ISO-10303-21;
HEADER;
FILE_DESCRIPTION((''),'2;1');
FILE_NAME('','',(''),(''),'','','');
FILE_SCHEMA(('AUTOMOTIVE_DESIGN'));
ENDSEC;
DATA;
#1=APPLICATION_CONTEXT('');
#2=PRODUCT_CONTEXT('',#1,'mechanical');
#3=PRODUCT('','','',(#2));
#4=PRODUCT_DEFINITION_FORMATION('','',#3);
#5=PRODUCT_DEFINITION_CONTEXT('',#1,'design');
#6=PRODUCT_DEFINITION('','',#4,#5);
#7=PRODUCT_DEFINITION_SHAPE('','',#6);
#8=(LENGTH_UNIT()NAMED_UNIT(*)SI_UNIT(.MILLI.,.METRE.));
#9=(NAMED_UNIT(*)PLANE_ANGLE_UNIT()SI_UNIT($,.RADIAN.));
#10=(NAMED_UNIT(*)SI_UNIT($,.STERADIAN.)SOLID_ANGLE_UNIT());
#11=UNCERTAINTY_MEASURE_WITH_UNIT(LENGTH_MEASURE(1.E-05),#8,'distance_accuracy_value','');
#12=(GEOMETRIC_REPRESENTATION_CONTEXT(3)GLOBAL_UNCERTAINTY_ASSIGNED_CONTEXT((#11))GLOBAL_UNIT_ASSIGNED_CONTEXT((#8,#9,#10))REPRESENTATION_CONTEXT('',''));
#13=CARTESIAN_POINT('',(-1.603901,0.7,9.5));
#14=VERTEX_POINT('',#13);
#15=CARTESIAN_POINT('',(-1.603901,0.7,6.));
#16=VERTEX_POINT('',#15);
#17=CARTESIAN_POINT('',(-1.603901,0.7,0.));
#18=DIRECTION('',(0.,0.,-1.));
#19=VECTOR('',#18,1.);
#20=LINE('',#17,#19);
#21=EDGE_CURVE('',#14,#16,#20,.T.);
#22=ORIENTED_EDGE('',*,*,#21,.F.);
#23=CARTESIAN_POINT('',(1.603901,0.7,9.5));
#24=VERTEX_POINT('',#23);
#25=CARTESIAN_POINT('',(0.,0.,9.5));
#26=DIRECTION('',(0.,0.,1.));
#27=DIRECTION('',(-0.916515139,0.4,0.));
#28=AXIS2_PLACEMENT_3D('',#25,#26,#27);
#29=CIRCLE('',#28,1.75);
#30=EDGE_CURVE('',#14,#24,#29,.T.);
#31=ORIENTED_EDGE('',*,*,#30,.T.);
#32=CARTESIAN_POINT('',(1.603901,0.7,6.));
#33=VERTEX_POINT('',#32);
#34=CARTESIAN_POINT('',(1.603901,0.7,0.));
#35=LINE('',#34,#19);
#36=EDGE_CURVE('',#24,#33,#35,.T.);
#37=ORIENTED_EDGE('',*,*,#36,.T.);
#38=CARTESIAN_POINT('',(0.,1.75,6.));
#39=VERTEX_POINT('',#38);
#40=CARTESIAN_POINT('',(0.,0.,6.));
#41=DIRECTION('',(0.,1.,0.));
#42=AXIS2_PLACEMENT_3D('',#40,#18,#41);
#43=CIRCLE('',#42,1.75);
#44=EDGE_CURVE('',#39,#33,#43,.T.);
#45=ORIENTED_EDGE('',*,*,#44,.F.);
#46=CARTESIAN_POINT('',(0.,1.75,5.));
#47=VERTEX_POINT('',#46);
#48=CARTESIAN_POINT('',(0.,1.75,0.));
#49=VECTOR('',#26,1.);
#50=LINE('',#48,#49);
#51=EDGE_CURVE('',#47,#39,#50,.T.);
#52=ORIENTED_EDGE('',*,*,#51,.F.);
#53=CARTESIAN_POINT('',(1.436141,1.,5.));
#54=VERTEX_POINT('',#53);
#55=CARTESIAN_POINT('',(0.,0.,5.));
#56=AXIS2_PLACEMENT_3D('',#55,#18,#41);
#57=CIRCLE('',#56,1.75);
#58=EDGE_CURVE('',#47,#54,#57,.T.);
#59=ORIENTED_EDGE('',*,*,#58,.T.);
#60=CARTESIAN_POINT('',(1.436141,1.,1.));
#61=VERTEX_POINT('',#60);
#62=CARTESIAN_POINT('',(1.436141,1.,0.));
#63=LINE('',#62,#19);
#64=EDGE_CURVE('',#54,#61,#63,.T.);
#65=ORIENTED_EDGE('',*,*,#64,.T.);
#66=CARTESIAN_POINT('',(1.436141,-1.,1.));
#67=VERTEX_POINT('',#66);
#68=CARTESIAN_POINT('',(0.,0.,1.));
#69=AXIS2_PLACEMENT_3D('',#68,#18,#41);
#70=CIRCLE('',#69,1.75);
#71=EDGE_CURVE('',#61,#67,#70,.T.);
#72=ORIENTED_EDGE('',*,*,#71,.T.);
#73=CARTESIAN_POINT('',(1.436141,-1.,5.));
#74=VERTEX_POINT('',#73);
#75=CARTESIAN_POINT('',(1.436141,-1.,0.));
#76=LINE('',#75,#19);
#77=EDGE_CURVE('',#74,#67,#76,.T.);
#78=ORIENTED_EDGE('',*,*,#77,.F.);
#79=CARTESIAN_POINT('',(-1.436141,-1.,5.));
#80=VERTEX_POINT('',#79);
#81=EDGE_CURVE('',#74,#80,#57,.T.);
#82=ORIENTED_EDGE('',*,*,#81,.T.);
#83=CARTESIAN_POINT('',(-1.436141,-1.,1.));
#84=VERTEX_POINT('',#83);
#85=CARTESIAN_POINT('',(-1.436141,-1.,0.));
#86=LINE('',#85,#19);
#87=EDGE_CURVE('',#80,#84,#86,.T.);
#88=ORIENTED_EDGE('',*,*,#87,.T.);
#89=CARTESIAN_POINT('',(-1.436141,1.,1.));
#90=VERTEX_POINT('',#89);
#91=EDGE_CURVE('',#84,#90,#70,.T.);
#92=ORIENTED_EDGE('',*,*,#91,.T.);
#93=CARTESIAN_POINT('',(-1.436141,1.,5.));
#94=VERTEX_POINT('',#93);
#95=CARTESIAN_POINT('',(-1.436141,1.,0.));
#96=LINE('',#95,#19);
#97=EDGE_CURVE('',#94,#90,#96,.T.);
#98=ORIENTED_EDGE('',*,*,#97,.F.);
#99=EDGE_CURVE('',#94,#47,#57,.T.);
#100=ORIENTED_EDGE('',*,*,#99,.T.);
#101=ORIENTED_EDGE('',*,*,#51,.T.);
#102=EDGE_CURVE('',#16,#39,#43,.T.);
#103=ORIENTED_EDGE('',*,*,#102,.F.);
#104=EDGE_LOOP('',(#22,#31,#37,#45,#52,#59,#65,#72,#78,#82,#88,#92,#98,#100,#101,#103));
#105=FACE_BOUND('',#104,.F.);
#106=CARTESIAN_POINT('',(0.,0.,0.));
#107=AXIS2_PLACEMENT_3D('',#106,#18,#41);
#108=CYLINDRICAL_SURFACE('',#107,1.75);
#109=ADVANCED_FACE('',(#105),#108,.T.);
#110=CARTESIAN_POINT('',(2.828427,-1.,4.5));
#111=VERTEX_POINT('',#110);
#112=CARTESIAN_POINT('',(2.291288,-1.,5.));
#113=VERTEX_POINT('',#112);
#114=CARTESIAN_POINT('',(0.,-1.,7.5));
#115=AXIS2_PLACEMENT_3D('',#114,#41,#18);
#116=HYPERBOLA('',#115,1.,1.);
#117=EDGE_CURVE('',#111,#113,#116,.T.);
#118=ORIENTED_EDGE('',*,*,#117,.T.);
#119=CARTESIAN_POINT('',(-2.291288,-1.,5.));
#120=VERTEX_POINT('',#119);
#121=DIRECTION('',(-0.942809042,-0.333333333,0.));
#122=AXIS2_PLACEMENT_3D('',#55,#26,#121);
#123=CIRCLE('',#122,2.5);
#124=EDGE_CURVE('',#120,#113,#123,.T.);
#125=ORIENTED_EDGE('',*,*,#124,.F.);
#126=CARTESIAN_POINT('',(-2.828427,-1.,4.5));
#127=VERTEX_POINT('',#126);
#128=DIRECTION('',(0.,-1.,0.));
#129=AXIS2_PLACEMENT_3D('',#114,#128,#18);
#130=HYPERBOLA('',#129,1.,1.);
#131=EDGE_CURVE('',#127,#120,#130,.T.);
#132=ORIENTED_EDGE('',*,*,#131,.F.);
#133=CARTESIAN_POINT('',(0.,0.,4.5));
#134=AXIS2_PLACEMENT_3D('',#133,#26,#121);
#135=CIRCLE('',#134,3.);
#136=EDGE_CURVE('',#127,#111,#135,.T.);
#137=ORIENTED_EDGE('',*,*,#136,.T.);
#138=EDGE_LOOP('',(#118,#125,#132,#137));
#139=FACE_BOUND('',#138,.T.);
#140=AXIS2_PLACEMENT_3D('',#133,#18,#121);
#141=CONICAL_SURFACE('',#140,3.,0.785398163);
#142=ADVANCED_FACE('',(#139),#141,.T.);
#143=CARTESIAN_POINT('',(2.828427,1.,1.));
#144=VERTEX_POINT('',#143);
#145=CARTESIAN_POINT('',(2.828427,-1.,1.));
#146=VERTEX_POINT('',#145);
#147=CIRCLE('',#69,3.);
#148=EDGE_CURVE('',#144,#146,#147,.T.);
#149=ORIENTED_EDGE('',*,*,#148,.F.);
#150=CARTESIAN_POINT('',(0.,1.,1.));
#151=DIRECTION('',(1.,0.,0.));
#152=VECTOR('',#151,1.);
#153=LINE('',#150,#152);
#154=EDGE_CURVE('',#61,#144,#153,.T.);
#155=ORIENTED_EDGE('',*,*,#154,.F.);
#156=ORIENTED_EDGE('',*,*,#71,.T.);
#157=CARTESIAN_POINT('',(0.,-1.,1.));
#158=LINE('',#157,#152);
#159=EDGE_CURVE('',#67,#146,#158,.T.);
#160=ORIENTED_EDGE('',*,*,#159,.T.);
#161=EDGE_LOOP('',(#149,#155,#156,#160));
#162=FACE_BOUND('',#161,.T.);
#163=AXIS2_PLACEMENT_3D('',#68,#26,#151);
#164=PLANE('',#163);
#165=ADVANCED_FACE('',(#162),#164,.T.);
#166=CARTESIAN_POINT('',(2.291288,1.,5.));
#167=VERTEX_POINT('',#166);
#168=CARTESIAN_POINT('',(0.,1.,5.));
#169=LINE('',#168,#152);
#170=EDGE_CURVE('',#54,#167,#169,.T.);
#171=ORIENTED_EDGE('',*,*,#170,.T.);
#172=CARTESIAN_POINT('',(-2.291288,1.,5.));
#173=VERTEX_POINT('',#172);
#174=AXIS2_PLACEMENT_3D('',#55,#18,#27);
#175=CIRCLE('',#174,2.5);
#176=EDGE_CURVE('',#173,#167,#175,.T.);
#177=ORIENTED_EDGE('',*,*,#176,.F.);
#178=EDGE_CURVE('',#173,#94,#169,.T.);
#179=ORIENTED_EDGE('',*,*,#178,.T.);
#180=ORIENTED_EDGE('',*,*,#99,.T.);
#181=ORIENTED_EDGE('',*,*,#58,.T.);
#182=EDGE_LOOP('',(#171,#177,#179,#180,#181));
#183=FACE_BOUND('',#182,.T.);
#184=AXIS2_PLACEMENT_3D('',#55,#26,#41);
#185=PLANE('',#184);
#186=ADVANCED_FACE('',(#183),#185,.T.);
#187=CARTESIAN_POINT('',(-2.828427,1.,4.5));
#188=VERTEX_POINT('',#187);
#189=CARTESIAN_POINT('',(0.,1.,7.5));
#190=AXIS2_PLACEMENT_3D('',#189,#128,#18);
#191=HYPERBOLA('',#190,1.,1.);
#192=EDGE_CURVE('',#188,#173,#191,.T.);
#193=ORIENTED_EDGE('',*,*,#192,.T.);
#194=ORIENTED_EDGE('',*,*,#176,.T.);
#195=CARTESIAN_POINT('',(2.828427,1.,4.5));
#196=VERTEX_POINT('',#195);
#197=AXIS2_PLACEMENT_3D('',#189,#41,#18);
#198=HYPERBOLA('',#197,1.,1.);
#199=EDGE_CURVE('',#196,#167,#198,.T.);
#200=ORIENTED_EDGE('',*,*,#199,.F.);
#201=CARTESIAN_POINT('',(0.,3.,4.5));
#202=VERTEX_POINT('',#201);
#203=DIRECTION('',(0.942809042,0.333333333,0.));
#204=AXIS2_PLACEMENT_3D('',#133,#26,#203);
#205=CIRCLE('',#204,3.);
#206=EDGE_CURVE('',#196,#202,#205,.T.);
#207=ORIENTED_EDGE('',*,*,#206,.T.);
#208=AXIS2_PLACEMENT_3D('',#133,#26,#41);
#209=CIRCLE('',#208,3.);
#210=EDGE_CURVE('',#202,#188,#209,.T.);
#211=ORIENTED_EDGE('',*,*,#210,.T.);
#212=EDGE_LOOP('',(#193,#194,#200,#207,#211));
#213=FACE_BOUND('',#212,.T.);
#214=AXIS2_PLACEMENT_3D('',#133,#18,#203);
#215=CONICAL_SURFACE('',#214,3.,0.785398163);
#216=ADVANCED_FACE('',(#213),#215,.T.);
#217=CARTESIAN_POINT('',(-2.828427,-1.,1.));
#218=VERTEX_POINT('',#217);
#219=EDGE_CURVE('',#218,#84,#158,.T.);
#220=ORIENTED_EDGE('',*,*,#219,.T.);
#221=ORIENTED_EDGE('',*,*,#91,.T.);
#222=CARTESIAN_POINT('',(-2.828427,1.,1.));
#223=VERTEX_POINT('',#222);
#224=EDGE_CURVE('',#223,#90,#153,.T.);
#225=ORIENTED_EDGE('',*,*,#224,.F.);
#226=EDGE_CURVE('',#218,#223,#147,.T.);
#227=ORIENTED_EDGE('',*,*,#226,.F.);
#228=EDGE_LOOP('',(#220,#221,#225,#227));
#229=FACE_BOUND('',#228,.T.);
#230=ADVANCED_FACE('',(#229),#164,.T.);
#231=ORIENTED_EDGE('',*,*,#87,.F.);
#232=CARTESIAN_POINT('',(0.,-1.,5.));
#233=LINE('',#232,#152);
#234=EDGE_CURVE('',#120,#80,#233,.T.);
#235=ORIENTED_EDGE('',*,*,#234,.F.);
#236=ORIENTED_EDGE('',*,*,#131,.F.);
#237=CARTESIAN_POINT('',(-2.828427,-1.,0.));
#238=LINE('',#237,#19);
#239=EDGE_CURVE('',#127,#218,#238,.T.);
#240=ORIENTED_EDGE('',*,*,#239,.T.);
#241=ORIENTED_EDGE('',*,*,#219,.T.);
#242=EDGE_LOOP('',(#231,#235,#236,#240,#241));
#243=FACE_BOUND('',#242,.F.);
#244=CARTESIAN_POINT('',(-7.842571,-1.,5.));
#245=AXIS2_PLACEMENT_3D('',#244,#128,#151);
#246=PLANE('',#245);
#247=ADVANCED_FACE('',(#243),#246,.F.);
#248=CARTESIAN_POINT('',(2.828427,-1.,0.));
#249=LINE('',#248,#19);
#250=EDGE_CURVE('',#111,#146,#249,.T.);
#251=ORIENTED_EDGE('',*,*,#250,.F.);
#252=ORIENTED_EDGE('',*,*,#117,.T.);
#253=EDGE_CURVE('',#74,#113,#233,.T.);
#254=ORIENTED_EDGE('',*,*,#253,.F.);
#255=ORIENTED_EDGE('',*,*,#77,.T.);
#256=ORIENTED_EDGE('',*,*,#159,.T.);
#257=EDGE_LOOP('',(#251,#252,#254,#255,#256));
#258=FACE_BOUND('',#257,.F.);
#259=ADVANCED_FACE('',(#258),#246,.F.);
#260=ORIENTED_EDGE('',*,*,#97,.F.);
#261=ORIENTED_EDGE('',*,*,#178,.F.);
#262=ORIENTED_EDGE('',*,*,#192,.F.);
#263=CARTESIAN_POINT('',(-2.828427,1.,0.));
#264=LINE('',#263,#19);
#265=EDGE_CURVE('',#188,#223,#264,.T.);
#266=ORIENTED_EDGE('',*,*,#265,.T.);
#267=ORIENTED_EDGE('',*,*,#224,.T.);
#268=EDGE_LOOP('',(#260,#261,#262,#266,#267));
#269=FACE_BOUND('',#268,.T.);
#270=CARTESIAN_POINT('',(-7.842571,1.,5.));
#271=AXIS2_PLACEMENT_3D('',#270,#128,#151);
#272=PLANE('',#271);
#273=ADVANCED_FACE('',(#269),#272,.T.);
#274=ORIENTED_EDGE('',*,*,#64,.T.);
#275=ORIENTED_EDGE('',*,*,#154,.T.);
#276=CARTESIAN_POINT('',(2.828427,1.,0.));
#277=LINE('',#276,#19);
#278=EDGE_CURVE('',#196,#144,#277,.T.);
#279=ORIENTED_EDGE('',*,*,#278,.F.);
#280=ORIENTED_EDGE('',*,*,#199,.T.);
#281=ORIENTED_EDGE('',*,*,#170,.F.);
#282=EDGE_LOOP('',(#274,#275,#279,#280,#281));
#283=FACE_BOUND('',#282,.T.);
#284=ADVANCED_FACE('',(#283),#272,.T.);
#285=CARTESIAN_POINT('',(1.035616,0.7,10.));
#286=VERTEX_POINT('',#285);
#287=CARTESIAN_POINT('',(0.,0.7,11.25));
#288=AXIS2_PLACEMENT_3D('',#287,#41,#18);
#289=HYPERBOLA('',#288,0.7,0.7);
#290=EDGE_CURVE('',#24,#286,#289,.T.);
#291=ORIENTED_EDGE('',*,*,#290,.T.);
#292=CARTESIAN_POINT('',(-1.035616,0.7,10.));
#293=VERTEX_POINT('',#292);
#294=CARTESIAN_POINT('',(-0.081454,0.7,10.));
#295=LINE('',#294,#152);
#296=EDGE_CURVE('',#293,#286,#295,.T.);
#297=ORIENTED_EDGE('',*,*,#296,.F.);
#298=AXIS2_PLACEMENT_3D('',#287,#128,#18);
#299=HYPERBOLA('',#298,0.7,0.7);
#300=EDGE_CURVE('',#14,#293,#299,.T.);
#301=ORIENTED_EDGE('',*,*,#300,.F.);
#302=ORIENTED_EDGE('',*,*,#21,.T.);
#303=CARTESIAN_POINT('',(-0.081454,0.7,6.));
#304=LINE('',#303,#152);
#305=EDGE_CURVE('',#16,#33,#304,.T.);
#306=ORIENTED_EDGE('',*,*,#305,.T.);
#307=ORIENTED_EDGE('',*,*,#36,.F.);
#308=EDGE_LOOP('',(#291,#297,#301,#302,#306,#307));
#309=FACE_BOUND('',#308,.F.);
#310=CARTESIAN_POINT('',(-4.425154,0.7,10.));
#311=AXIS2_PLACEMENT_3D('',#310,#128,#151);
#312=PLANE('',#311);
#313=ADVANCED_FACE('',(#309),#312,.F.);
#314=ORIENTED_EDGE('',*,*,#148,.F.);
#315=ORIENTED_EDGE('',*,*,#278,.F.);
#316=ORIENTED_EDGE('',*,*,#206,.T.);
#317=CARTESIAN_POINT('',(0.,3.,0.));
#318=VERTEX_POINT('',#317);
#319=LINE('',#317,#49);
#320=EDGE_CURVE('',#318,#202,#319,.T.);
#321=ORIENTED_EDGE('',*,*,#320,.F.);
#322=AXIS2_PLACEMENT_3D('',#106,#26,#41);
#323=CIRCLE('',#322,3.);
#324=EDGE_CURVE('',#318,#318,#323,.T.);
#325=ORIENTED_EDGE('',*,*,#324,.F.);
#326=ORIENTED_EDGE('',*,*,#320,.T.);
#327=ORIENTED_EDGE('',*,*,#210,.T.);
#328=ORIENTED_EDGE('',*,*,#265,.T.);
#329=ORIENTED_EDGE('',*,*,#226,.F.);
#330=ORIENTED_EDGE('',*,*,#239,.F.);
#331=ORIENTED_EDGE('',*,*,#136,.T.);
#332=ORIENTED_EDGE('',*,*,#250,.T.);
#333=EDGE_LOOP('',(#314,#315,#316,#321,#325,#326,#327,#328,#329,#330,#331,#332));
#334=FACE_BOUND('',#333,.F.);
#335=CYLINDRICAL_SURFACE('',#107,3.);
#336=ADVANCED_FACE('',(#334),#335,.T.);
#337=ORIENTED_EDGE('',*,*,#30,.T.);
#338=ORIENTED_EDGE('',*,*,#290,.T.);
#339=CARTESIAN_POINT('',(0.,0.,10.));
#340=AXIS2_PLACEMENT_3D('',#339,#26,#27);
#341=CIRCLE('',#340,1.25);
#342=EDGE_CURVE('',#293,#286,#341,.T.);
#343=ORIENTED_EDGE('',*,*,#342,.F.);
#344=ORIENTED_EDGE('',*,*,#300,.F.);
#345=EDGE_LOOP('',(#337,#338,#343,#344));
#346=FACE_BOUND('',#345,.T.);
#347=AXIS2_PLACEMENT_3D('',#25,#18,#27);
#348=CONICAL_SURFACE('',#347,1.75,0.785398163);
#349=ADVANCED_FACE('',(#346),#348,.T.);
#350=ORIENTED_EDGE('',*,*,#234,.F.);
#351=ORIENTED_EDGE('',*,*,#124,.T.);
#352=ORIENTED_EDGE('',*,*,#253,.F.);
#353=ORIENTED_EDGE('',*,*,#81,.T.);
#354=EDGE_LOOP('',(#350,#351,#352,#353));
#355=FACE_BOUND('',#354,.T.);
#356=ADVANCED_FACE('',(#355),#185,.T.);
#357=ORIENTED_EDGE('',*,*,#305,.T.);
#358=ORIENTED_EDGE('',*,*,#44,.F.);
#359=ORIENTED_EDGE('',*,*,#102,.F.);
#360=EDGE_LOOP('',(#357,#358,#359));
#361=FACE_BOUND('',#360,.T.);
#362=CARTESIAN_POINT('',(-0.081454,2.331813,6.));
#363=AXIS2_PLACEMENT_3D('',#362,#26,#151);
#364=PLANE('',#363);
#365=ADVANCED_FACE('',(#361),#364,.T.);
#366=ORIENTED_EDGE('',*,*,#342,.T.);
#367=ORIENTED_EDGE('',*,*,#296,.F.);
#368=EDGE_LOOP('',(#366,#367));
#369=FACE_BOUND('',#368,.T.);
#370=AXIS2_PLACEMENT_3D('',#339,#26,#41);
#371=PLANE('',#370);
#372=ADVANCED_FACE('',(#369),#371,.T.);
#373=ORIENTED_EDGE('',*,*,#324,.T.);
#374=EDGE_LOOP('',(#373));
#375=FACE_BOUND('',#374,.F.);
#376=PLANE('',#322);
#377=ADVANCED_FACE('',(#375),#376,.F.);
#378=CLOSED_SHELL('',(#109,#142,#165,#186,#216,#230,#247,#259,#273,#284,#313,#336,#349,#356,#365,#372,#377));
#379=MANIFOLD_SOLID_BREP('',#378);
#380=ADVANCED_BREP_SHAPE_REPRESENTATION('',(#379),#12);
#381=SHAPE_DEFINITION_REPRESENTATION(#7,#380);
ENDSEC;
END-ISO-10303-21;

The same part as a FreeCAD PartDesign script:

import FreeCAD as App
import Part
import Sketcher
Q = App.Units.Quantity


def edges_at(feature, points):
    """Names of the edges that pass closest to the given points."""
    edges = feature.Shape.Edges
    near = lambda p: min(range(len(edges)), key=lambda i: edges[i].distToShape(Part.Vertex(*p))[0])
    return sorted({f"Edge{near(p) + 1}" for p in points})


def add_polygon(sketch, points):
    """Adds a closed chain of lines whose ends are joined by coincident constraints."""
    first, n = sketch.GeometryCount, len(points)
    for a, b in zip(points, points[1:] + points[:1]):
        sketch.addGeometry(Part.LineSegment(App.Vector(*a, 0), App.Vector(*b, 0)), False)
    for i in range(n):
        sketch.addConstraint(Sketcher.Constraint("Coincident", first + i, 2, first + (i + 1) % n, 1))

doc = App.newDocument("Part")
body = doc.addObject("PartDesign::Body", "Body")

sketch1 = body.newObject("Sketcher::SketchObject", "Sketch")
sketch1.AttachmentSupport = (doc.getObject("XY_Plane"), [""])
sketch1.MapMode = "FlatFace"
sketch1.addGeometry(Part.Circle(App.Vector(0, 0, 0), App.Vector(0, 0, 1), 3), False)
sketch1.addConstraint([
    Sketcher.Constraint("Coincident", 0, 3, -1, 1),
    Sketcher.Constraint("Diameter", 0, Q("6 mm")),
])
pad1 = body.newObject("PartDesign::Pad", "Pad")
pad1.Profile = sketch1
pad1.Length = 5

sketch2 = body.newObject("Sketcher::SketchObject", "Sketch001")
sketch2.AttachmentSupport = (doc.getObject("XY_Plane"), [""])
sketch2.MapMode = "FlatFace"
sketch2.AttachmentOffset = App.Placement(App.Vector(0, 0, 5), App.Rotation())
add_polygon(sketch2, [(-7.8, 1), (-7.8, -1), (7.8, -1), (7.8, 1)])
sketch2.addConstraint([
    Sketcher.Constraint("Vertical", 0),
    Sketcher.Constraint("Horizontal", 1),
    Sketcher.Constraint("Vertical", 2),
    Sketcher.Constraint("Horizontal", 3),
    Sketcher.Constraint("Symmetric", 0, 2, 2, 2, -1, 1),
    Sketcher.Constraint("DistanceY", 0, 2, 0, 1, Q("2 mm")),
    Sketcher.Constraint("DistanceX", 1, 1, 1, 2, Q("15.685142 mm")),
])
pocket1 = body.newObject("PartDesign::Pocket", "Pocket")
pocket1.Profile = sketch2
pocket1.Length = 4

sketch3 = body.newObject("Sketcher::SketchObject", "Sketch002")
sketch3.AttachmentSupport = (doc.getObject("XY_Plane"), [""])
sketch3.MapMode = "FlatFace"
sketch3.addGeometry(Part.Circle(App.Vector(0, 0, 0), App.Vector(0, 0, 1), 1.8), False)
sketch3.addConstraint([
    Sketcher.Constraint("Coincident", 0, 3, -1, 1),
    Sketcher.Constraint("Diameter", 0, Q("3.5 mm")),
])
pad2 = body.newObject("PartDesign::Pad", "Pad001")
pad2.Profile = sketch3
pad2.Length = 10

sketch4 = body.newObject("Sketcher::SketchObject", "Sketch003")
sketch4.AttachmentSupport = (doc.getObject("XY_Plane"), [""])
sketch4.MapMode = "FlatFace"
sketch4.AttachmentOffset = App.Placement(App.Vector(0, 0, 10), App.Rotation())
add_polygon(sketch4, [(-4.4, 4), (-4.4, 0.7), (4.3, 0.7), (4.3, 4)])
sketch4.addConstraint([
    Sketcher.Constraint("Vertical", 0),
    Sketcher.Constraint("Horizontal", 1),
    Sketcher.Constraint("Vertical", 2),
    Sketcher.Constraint("Horizontal", 3),
    Sketcher.Constraint("DistanceY", -1, 1, 0, 2, Q("0.7 mm")),
    Sketcher.Constraint("DistanceX", 1, 1, 1, 2, Q("8.687401 mm")),
    Sketcher.Constraint("DistanceY", 0, 2, 0, 1, Q("3.263626 mm")),
    Sketcher.Constraint("DistanceX", 0, 2, -1, 1, Q("4.425154 mm")),
])
pocket2 = body.newObject("PartDesign::Pocket", "Pocket001")
pocket2.Profile = sketch4
pocket2.Length = 4
doc.recompute()

chamfer = body.newObject("PartDesign::Chamfer", "Chamfer")
chamfer.Base = (pocket2, edges_at(pocket2, [
    (0, -1.75, 10),
    (0, -3, 5),
    (-1.732, 2.449, 5),
    (1.732, 2.449, 5),
]))
chamfer.Size = 0.5

doc.recompute()
